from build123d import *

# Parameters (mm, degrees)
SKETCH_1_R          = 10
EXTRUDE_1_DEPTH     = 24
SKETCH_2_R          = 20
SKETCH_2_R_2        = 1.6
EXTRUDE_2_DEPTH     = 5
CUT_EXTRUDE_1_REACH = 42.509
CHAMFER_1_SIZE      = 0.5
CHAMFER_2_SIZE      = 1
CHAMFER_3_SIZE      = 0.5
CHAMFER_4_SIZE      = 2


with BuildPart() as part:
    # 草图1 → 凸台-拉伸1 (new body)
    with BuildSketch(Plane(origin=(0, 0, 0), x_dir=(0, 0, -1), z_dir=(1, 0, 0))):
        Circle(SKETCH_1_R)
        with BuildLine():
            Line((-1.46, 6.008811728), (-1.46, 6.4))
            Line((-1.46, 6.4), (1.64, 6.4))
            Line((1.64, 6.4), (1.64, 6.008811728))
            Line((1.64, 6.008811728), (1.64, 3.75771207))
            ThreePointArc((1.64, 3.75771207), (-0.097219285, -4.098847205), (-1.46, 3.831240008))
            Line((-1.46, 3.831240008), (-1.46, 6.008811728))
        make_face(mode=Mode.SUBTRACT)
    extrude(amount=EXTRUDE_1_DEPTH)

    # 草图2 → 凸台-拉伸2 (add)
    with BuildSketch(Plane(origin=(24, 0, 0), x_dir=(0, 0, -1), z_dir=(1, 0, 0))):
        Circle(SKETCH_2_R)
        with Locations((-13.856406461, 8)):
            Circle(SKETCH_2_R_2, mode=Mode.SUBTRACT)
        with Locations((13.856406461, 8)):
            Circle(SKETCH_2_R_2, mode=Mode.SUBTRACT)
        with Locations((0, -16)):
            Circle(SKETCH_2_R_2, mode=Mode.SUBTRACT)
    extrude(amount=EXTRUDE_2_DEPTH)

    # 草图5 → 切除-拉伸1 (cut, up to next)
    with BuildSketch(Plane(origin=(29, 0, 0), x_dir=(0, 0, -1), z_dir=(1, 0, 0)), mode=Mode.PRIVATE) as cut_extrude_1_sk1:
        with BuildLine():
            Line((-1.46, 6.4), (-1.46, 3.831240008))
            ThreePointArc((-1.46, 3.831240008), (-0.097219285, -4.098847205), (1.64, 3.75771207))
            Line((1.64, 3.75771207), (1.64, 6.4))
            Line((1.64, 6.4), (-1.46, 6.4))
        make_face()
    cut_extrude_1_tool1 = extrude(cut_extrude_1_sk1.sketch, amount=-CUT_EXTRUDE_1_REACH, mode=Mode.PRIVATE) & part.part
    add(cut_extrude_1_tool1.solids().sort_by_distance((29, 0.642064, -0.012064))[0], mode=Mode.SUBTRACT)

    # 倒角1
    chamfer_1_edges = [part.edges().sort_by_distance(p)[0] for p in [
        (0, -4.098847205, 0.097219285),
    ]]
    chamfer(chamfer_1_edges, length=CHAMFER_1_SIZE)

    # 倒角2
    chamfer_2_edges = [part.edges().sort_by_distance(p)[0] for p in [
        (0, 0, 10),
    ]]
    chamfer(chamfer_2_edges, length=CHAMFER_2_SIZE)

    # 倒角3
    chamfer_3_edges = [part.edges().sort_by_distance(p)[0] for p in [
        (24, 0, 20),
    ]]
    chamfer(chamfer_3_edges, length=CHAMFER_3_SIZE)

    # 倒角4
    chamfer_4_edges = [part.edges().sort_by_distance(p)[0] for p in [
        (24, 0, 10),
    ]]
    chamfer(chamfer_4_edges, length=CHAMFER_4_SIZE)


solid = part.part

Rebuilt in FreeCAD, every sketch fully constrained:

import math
import FreeCAD as App
import Part
import Sketcher
Q = App.Units.Quantity


def edges_at(feature, points):
    """Names of the edges that pass closest to the given points."""
    edges = feature.Shape.Edges
    near = lambda p: min(range(len(edges)), key=lambda i: edges[i].distToShape(Part.Vertex(*p))[0])
    return sorted({f"Edge{near(p) + 1}" for p in points})

doc = App.newDocument("Part")
body = doc.addObject("PartDesign::Body", "Body")

sketch1 = body.newObject("Sketcher::SketchObject", "Sketch")
sketch1.AttachmentSupport = (doc.getObject("YZ_Plane"), [""])
sketch1.MapMode = "FlatFace"
sketch1.addGeometry([
    Part.Circle(App.Vector(0, 0, 0), App.Vector(0, 0, 1), 10),
    Part.LineSegment(App.Vector(3.83124, 1.46, 0), App.Vector(6.4, 1.46, 0)),
    Part.LineSegment(App.Vector(6.4, 1.46, 0), App.Vector(6.4, -1.64, 0)),
    Part.LineSegment(App.Vector(6.4, -1.64, 0), App.Vector(3.757712, -1.64, 0)),
    Part.ArcOfCircle(Part.Circle(App.Vector(0, 0, 0), App.Vector(0, 0, 1), 4.1), math.radians(20.860726), math.radians(336.421822)),
], False)
sketch1.addConstraint([
    Sketcher.Constraint("Coincident", 1, 2, 2, 1),
    Sketcher.Constraint("Coincident", 2, 2, 3, 1),
    Sketcher.Constraint("Coincident", 3, 2, 4, 2),
    Sketcher.Constraint("Coincident", 4, 1, 1, 1),
    Sketcher.Constraint("Horizontal", 1),
    Sketcher.Constraint("Vertical", 2),
    Sketcher.Constraint("Horizontal", 3),
    Sketcher.Constraint("Coincident", 0, 3, -1, 1),
    Sketcher.Constraint("Coincident", 4, 3, -1, 1),
    Sketcher.Constraint("Diameter", 0, Q("20 mm")),
    Sketcher.Constraint("Radius", 4, Q("4.1 mm")),
    Sketcher.Constraint("DistanceY", 2, 2, 2, 1, Q("3.1 mm")),
    Sketcher.Constraint("DistanceX", -1, 1, 1, 2, Q("6.4 mm")),
    Sketcher.Constraint("DistanceY", -1, 1, 1, 2, Q("1.46 mm")),
])
pad1 = body.newObject("PartDesign::Pad", "Pad")
pad1.Profile = sketch1
pad1.Length = 24

sketch2 = body.newObject("Sketcher::SketchObject", "Sketch001")
sketch2.AttachmentSupport = (doc.getObject("YZ_Plane"), [""])
sketch2.MapMode = "FlatFace"
sketch2.AttachmentOffset = App.Placement(App.Vector(0, 0, 24), App.Rotation())
sketch2.addGeometry([
    Part.Circle(App.Vector(0, 0, 0), App.Vector(0, 0, 1), 20),
    Part.Circle(App.Vector(-16, 0, 0), App.Vector(0, 0, 1), 1.6),
    Part.Circle(App.Vector(8, 13.856406, 0), App.Vector(0, 0, 1), 1.6),
    Part.Circle(App.Vector(8, -13.856406, 0), App.Vector(0, 0, 1), 1.6),
], False)
sketch2.addConstraint([
    Sketcher.Constraint("Coincident", 0, 3, -1, 1),
    Sketcher.Constraint("Equal", 1, 2),
    Sketcher.Constraint("Equal", 2, 3),
    Sketcher.Constraint("Symmetric", 2, 3, 3, 3, -1),
    Sketcher.Constraint("PointOnObject", 1, 3, -1),
    Sketcher.Constraint("Diameter", 0, Q("40 mm")),
    Sketcher.Constraint("Diameter", 1, Q("3.2 mm")),
    Sketcher.Constraint("DistanceX", 1, 3, -1, 1, Q("16 mm")),
    Sketcher.Constraint("DistanceX", -1, 1, 2, 3, Q("8 mm")),
    Sketcher.Constraint("DistanceY", -1, 1, 2, 3, Q("13.856406 mm")),
])
pad2 = body.newObject("PartDesign::Pad", "Pad001")
pad2.Profile = sketch2
pad2.Length = 5

sketch3 = body.newObject("Sketcher::SketchObject", "Sketch002")
sketch3.AttachmentSupport = (doc.getObject("YZ_Plane"), [""])
sketch3.MapMode = "FlatFace"
sketch3.AttachmentOffset = App.Placement(App.Vector(0, 0, 29), App.Rotation())
sketch3.addGeometry([
    Part.LineSegment(App.Vector(6.4, 1.46, 0), App.Vector(3.83124, 1.46, 0)),
    Part.ArcOfCircle(Part.Circle(App.Vector(0, 0, 0), App.Vector(0, 0, 1), 4.1), math.radians(20.860726), math.radians(336.421822)),
    Part.LineSegment(App.Vector(3.757712, -1.64, 0), App.Vector(6.4, -1.64, 0)),
    Part.LineSegment(App.Vector(6.4, -1.64, 0), App.Vector(6.4, 1.46, 0)),
], False)
sketch3.addConstraint([
    Sketcher.Constraint("Coincident", 0, 2, 1, 1),
    Sketcher.Constraint("Coincident", 1, 2, 2, 1),
    Sketcher.Constraint("Coincident", 2, 2, 3, 1),
    Sketcher.Constraint("Coincident", 3, 2, 0, 1),
    Sketcher.Constraint("Horizontal", 0),
    Sketcher.Constraint("Horizontal", 2),
    Sketcher.Constraint("Vertical", 3),
    Sketcher.Constraint("Coincident", 1, 3, -1, 1),
    Sketcher.Constraint("Radius", 1, Q("4.1 mm")),
    Sketcher.Constraint("DistanceY", 3, 1, 3, 2, Q("3.1 mm")),
    Sketcher.Constraint("DistanceX", -1, 1, 2, 2, Q("6.4 mm")),
    Sketcher.Constraint("DistanceY", -1, 1, 0, 2, Q("1.46 mm")),
])
pocket1 = body.newObject("PartDesign::Pocket", "Pocket")
pocket1.Profile = sketch3
pocket1.Type = "UpToFirst"
doc.recompute()

chamfer = body.newObject("PartDesign::Chamfer", "Chamfer")
chamfer.Base = (pocket1, edges_at(pocket1, [(0, -4.099, 0.097)]))
chamfer.Size = 0.5
doc.recompute()

chamfer2 = body.newObject("PartDesign::Chamfer", "Chamfer001")
chamfer2.Base = (chamfer, edges_at(chamfer, [(0, 0, 10)]))
chamfer2.Size = 1
doc.recompute()

chamfer3 = body.newObject("PartDesign::Chamfer", "Chamfer002")
chamfer3.Base = (chamfer2, edges_at(chamfer2, [(24, 0, 20)]))
chamfer3.Size = 0.5
doc.recompute()

chamfer4 = body.newObject("PartDesign::Chamfer", "Chamfer003")
chamfer4.Base = (chamfer3, edges_at(chamfer3, [(24, 0, 10)]))
chamfer4.Size = 2

doc.recompute()
